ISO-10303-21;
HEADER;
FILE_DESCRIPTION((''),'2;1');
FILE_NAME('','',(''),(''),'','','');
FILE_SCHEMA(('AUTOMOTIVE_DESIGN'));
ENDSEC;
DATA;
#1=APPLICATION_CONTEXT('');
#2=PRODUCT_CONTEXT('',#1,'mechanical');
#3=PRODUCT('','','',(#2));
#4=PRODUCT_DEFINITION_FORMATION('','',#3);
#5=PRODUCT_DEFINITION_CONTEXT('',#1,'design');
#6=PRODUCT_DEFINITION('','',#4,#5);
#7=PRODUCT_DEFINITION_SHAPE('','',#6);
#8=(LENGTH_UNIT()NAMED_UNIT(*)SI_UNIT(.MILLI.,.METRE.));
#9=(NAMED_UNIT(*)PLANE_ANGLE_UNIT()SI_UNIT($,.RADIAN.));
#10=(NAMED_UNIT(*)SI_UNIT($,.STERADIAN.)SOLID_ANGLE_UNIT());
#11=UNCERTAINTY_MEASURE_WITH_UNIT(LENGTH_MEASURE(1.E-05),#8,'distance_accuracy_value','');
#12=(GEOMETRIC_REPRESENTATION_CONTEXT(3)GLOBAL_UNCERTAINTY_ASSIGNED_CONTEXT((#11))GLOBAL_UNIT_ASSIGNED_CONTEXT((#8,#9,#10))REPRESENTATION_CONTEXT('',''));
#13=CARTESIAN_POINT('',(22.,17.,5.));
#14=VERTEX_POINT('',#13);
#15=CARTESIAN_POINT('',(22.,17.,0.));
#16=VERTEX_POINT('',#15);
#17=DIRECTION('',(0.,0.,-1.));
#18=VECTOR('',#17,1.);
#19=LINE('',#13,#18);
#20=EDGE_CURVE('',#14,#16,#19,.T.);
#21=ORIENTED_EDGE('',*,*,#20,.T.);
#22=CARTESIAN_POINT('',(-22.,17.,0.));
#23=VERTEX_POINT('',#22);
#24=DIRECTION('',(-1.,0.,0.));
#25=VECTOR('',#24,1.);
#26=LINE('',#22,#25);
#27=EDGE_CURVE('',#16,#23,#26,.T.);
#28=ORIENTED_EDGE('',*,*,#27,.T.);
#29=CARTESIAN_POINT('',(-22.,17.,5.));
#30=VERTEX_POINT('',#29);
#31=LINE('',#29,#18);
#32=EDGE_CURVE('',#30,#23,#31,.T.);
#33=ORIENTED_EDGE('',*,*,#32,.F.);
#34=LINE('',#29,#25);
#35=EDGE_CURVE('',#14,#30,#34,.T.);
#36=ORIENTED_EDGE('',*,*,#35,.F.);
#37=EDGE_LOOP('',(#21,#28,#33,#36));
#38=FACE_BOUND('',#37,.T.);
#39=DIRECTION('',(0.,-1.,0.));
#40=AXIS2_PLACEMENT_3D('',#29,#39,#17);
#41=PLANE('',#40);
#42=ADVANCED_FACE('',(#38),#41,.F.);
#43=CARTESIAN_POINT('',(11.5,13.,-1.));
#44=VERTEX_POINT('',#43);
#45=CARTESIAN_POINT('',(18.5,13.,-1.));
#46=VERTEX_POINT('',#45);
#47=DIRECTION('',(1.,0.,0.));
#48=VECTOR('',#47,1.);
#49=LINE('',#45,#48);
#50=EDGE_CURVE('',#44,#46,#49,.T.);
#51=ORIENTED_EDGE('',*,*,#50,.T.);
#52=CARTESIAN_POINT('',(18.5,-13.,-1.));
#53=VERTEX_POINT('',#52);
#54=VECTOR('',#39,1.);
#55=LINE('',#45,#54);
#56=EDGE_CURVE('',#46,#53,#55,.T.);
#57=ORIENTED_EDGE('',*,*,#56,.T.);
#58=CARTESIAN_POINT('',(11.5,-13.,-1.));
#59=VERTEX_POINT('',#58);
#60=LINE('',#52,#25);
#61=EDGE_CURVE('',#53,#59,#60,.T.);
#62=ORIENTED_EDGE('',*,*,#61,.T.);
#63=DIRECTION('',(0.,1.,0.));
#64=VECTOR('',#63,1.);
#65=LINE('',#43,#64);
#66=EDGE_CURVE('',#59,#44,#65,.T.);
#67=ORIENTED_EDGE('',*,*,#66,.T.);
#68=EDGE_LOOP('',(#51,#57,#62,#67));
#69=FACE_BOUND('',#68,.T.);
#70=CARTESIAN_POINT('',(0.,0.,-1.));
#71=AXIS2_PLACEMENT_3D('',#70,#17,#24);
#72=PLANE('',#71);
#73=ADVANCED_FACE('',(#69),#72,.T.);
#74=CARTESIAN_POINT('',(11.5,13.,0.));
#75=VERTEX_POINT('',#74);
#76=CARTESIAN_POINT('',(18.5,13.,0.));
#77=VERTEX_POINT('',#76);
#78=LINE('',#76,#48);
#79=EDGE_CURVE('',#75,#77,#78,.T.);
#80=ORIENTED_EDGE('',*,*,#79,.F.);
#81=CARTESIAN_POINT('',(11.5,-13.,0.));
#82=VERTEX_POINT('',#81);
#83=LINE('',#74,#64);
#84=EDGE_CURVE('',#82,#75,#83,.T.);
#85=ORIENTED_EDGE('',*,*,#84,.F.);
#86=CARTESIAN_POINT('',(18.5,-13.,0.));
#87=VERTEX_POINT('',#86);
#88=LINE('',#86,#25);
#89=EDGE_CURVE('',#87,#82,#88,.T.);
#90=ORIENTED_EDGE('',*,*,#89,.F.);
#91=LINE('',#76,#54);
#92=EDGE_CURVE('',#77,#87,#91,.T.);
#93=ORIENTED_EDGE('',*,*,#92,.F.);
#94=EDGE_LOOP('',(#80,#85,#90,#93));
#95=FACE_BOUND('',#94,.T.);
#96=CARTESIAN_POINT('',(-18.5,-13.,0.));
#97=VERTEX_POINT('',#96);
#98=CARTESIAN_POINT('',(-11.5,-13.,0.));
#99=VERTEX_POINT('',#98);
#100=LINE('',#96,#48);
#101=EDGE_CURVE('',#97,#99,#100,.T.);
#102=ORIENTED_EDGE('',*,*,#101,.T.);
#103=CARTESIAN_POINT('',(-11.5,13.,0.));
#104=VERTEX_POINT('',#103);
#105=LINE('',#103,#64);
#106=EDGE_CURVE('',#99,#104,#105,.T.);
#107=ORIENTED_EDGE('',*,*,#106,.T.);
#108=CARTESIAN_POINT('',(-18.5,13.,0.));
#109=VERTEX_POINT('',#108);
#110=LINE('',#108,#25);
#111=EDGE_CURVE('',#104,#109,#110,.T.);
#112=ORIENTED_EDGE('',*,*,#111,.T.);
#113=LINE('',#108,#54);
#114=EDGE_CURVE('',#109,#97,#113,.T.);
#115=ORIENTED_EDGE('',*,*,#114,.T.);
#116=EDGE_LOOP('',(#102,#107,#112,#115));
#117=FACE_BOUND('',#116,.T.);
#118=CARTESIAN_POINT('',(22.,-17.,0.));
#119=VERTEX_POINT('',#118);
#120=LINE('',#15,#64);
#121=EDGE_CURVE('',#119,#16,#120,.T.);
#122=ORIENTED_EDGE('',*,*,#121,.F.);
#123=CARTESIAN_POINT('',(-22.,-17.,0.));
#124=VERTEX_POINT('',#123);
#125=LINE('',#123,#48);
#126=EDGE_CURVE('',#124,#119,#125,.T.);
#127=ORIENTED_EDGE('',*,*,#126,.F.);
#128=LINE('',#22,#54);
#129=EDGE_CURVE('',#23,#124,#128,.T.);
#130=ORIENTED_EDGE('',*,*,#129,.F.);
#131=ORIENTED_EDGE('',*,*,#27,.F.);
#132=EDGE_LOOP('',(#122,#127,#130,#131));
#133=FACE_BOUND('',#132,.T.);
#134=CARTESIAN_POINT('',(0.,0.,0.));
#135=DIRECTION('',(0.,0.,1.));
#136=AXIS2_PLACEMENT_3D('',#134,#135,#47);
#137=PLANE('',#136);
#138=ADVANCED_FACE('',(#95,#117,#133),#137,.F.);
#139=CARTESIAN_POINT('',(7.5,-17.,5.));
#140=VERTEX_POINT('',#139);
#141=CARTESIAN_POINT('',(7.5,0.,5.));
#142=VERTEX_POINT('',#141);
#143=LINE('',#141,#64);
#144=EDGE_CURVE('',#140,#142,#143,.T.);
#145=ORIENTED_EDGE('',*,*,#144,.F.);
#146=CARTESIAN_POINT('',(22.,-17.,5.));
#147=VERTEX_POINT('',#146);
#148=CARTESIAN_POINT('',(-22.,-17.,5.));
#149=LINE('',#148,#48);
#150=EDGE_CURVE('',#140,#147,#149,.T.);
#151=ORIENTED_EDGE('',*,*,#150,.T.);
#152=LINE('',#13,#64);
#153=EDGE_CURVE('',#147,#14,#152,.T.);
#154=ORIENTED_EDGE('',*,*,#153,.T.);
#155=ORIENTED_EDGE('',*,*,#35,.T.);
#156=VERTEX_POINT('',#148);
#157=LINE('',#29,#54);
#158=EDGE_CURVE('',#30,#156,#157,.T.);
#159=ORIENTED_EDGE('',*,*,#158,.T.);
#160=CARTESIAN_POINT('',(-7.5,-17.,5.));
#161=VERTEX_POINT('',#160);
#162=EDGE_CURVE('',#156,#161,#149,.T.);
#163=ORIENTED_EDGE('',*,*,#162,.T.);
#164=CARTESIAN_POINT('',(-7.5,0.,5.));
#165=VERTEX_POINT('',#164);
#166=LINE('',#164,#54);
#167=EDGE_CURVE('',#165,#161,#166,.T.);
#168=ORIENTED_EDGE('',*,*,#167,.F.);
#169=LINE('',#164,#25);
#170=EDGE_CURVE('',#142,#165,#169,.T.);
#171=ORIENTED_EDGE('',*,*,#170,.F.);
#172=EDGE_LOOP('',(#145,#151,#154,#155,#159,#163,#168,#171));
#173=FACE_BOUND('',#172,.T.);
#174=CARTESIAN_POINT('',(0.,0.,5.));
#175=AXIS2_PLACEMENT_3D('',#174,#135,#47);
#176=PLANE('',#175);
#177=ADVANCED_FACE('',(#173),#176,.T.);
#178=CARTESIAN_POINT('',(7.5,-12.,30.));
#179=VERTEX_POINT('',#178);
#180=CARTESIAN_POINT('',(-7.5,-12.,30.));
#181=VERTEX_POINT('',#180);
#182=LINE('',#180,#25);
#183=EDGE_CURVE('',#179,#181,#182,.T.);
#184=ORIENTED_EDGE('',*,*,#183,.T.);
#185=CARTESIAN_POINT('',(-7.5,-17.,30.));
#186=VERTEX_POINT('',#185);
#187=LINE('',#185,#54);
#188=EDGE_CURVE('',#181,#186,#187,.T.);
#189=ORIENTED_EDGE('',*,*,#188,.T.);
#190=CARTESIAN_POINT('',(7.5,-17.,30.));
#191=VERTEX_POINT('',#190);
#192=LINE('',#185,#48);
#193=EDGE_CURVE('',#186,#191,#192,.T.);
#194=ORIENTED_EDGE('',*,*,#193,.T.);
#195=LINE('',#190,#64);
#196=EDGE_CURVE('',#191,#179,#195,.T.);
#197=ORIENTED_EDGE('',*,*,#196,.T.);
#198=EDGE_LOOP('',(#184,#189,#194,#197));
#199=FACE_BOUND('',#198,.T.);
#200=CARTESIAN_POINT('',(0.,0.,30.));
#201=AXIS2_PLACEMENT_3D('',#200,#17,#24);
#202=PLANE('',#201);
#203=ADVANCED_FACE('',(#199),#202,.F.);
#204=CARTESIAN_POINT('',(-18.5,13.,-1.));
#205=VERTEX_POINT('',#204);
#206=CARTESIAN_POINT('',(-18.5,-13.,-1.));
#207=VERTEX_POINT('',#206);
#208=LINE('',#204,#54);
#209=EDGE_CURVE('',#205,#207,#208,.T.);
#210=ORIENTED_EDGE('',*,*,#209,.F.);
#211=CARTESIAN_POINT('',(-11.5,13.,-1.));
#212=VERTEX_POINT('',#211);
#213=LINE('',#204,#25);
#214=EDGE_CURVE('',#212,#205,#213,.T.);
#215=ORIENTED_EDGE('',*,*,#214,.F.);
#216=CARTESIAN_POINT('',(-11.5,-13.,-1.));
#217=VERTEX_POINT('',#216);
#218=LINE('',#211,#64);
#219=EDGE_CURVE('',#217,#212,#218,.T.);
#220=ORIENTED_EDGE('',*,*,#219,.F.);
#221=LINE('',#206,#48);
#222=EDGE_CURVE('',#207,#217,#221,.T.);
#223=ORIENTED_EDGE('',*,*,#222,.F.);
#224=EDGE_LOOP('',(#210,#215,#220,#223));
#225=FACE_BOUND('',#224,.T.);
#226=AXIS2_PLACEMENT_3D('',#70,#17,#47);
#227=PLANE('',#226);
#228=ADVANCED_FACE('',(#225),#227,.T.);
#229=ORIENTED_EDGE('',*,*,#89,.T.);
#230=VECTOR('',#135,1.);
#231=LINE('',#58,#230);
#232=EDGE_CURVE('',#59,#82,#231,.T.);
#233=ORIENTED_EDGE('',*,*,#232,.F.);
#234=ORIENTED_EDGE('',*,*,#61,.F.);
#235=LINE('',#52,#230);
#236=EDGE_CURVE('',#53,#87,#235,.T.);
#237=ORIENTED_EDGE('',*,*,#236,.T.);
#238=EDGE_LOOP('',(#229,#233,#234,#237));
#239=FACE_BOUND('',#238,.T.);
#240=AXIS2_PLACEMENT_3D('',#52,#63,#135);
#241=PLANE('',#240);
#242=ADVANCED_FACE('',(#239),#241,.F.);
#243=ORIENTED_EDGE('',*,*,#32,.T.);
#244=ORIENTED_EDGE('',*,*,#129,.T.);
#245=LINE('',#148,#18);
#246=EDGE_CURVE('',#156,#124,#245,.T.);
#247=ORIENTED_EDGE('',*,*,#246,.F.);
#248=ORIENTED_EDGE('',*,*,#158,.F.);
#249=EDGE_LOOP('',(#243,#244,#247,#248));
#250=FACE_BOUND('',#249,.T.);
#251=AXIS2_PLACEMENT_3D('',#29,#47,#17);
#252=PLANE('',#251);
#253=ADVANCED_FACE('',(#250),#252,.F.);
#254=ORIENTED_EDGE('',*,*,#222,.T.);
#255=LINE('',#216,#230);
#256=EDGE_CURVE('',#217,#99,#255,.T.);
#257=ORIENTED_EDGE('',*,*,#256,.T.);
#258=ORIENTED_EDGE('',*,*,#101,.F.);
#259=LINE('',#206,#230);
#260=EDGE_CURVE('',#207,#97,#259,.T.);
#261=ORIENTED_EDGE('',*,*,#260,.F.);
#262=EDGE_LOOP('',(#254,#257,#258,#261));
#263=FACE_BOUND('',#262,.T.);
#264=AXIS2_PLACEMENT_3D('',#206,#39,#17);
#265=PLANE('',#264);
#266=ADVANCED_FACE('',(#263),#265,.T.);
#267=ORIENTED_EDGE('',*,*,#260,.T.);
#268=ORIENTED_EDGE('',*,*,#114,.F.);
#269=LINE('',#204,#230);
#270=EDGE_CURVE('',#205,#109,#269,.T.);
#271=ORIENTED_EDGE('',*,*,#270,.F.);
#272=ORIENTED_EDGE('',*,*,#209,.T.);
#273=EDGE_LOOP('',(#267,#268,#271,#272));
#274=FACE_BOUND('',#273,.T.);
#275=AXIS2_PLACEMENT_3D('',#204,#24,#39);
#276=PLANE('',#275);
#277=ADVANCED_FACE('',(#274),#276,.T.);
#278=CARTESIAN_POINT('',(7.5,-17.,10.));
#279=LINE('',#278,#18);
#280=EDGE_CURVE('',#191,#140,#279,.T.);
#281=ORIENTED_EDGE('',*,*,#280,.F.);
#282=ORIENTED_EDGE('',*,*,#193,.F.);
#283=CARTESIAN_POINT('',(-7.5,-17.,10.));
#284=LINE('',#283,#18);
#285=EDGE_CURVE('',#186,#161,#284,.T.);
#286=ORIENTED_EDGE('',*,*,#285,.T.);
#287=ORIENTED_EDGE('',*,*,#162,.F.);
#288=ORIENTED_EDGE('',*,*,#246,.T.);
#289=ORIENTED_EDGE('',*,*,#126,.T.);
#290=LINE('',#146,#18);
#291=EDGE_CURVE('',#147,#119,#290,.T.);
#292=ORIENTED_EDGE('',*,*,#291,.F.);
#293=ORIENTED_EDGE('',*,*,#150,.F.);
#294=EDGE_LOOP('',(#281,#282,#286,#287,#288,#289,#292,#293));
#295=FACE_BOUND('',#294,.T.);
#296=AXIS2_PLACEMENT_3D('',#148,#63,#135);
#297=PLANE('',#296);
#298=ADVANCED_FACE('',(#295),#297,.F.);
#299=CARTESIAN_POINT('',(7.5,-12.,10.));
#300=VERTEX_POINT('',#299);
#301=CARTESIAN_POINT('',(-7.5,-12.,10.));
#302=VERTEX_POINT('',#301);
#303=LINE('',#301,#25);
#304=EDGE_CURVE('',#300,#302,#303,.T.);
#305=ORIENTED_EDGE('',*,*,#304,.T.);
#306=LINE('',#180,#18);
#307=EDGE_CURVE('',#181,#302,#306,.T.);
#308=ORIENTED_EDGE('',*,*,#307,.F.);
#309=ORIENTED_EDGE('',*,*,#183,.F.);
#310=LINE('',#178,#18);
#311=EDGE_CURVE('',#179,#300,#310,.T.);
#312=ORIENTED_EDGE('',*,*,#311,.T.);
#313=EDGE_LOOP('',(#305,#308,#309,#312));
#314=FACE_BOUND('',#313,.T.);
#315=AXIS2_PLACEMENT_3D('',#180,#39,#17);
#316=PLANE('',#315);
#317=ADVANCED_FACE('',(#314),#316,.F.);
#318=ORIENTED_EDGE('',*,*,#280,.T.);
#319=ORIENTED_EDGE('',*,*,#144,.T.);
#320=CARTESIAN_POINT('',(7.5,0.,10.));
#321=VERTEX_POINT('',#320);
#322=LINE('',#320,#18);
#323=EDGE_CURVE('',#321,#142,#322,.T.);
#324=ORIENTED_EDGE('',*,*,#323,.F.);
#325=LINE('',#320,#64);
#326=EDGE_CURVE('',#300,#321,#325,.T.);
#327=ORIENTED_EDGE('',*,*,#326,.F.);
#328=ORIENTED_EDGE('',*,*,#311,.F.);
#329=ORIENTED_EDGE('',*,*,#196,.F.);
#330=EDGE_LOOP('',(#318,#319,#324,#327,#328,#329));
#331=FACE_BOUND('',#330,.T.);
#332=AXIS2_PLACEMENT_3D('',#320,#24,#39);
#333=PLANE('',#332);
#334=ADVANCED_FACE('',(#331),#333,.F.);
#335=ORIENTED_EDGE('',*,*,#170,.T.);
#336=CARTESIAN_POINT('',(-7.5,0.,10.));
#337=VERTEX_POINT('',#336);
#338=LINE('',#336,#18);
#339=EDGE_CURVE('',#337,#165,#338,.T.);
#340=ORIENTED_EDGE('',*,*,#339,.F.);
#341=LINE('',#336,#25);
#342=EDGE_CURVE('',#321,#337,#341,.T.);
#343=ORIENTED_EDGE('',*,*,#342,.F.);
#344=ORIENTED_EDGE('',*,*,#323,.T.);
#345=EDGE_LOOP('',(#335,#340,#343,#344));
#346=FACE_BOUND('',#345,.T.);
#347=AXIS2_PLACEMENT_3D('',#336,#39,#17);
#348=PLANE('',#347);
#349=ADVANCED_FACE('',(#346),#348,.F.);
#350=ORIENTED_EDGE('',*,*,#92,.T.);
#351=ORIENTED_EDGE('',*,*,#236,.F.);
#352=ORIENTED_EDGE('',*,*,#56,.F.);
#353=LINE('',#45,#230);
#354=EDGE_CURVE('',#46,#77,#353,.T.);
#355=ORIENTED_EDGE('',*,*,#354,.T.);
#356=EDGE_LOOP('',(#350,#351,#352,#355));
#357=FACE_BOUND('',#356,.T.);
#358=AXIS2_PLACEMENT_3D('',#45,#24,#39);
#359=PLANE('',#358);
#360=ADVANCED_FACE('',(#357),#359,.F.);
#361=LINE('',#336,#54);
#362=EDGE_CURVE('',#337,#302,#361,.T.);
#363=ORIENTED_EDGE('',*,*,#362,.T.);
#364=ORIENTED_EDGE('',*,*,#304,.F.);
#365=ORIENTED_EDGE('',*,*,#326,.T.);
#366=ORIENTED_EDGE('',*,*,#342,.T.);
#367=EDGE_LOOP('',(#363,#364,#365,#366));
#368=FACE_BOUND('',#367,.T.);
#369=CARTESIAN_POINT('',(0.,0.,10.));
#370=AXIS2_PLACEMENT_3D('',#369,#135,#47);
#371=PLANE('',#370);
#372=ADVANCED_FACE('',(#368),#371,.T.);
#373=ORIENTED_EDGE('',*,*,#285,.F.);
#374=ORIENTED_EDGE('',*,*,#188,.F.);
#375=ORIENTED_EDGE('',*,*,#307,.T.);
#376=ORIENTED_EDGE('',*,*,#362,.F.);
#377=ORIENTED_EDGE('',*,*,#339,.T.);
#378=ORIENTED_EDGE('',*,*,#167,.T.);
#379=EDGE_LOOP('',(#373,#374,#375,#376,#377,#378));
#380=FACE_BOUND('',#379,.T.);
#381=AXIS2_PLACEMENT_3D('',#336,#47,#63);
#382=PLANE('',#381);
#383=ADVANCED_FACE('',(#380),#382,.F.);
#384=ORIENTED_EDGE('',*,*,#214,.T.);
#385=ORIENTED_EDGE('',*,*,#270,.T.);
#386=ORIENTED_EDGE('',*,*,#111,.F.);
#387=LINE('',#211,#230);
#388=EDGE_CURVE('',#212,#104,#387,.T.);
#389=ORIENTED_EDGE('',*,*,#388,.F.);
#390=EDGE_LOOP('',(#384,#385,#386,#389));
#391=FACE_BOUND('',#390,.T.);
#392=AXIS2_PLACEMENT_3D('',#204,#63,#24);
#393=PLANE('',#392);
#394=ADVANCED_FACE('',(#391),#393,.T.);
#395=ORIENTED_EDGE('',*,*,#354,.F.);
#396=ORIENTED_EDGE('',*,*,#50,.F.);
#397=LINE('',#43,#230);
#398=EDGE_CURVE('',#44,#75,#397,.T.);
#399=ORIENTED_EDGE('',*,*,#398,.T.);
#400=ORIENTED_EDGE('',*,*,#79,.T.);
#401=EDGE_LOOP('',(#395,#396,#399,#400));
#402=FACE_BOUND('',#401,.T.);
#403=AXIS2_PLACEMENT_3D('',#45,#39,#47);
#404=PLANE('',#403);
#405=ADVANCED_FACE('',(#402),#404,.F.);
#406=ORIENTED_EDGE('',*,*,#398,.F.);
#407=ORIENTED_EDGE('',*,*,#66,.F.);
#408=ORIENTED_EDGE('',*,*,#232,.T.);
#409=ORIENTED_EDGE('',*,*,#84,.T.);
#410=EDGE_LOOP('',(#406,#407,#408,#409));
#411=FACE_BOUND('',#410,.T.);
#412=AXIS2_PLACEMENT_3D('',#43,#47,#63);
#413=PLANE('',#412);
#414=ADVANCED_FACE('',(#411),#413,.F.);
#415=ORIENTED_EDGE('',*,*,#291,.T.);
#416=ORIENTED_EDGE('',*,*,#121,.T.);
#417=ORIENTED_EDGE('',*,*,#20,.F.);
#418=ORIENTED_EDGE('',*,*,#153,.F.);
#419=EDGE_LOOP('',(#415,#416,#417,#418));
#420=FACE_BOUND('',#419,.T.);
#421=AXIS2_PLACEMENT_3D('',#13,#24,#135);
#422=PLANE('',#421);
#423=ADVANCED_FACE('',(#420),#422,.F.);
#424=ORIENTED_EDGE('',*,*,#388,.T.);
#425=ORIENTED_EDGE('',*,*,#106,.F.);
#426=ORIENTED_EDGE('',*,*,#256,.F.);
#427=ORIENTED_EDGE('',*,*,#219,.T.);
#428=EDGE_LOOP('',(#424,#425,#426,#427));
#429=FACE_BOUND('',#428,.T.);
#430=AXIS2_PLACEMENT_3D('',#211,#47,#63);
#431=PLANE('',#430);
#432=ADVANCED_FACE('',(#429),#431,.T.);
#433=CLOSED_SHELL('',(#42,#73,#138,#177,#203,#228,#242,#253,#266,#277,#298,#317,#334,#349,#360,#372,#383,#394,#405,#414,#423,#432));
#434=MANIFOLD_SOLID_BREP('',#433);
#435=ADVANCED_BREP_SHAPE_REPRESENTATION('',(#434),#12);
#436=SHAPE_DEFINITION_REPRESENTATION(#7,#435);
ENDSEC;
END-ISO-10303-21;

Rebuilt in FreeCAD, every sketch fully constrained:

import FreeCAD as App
import Part
import Sketcher

V = App.Vector
Q = App.Units.Quantity

doc = App.newDocument("Part")
body = doc.addObject("PartDesign::Body", "Body")

# Sketch on XY plane
sketch1 = doc.addObject("Sketcher::SketchObject", "Sketch")
body.addObject(sketch1)
sketch1.AttachmentSupport = (doc.XY_Plane, [""])
sketch1.MapMode = "FlatFace"
sketch1.addGeometry(Part.LineSegment(V(-22, 17, 0), V(-22, -17, 0)), False)
sketch1.addGeometry(Part.LineSegment(V(-22, -17, 0), V(22, -17, 0)), False)
sketch1.addGeometry(Part.LineSegment(V(22, -17, 0), V(22, 17, 0)), False)
sketch1.addGeometry(Part.LineSegment(V(22, 17, 0), V(-22, 17, 0)), False)
sketch1.addConstraint(Sketcher.Constraint("Coincident", 0, 2, 1, 1))
sketch1.addConstraint(Sketcher.Constraint("Coincident", 1, 2, 2, 1))
sketch1.addConstraint(Sketcher.Constraint("Coincident", 2, 2, 3, 1))
sketch1.addConstraint(Sketcher.Constraint("Coincident", 3, 2, 0, 1))
sketch1.addConstraint(Sketcher.Constraint("Vertical", 0))
sketch1.addConstraint(Sketcher.Constraint("Horizontal", 1))
sketch1.addConstraint(Sketcher.Constraint("Vertical", 2))
sketch1.addConstraint(Sketcher.Constraint("Horizontal", 3))
sketch1.addConstraint(Sketcher.Constraint("Symmetric", 0, 2, 2, 2, -1, 1))
sketch1.addConstraint(Sketcher.Constraint("DistanceX", 1, 1, 1, 2, Q("44 mm")))
sketch1.addConstraint(Sketcher.Constraint("DistanceY", 0, 2, 0, 1, Q("34 mm")))
pad1 = doc.addObject("PartDesign::Pad", "Pad")
body.addObject(pad1)
pad1.Profile = sketch1
pad1.Length = 5

# Sketch on XY plane
sketch2 = doc.addObject("Sketcher::SketchObject", "Sketch001")
body.addObject(sketch2)
sketch2.AttachmentSupport = (doc.XY_Plane, [""])
sketch2.MapMode = "FlatFace"
sketch2.addGeometry(Part.LineSegment(V(18.5, 13, 0), V(18.5, -13, 0)), False)
sketch2.addGeometry(Part.LineSegment(V(18.5, -13, 0), V(11.5, -13, 0)), False)
sketch2.addGeometry(Part.LineSegment(V(11.5, -13, 0), V(11.5, 13, 0)), False)
sketch2.addGeometry(Part.LineSegment(V(11.5, 13, 0), V(18.5, 13, 0)), False)
sketch2.addConstraint(Sketcher.Constraint("Coincident", 0, 2, 1, 1))
sketch2.addConstraint(Sketcher.Constraint("Coincident", 1, 2, 2, 1))
sketch2.addConstraint(Sketcher.Constraint("Coincident", 2, 2, 3, 1))
sketch2.addConstraint(Sketcher.Constraint("Coincident", 3, 2, 0, 1))
sketch2.addConstraint(Sketcher.Constraint("Vertical", 0))
sketch2.addConstraint(Sketcher.Constraint("Horizontal", 1))
sketch2.addConstraint(Sketcher.Constraint("Vertical", 2))
sketch2.addConstraint(Sketcher.Constraint("Horizontal", 3))
sketch2.addConstraint(Sketcher.Constraint("DistanceX", 1, 2, 1, 1, Q("7 mm")))
sketch2.addConstraint(Sketcher.Constraint("DistanceY", 0, 2, 0, 1, Q("26 mm")))
sketch2.addConstraint(Sketcher.Constraint("DistanceY", 0, 2, -1, 1, Q("13 mm")))
sketch2.addConstraint(Sketcher.Constraint("DistanceX", -1, 1, 0, 2, Q("18.5 mm")))
pad2 = doc.addObject("PartDesign::Pad", "Pad001")
body.addObject(pad2)
pad2.Profile = sketch2
pad2.Length = 1
pad2.Reversed = True
doc.recompute()

mirrored = doc.addObject("PartDesign::Mirrored", "Mirrored")
body.addObject(mirrored)
mirrored.Originals = [pad2]
mirrored.MirrorPlane = (doc.YZ_Plane, [""])
body.Tip = mirrored

# Sketch on XY plane
sketch3 = doc.addObject("Sketcher::SketchObject", "Sketch002")
body.addObject(sketch3)
sketch3.AttachmentSupport = (doc.XY_Plane, [""])
sketch3.MapMode = "FlatFace"
sketch3.AttachmentOffset = App.Placement(V(0, 0, 5), App.Rotation())
sketch3.addGeometry(Part.LineSegment(V(-7.5, 0, 0), V(-7.5, -17, 0)), False)
sketch3.addGeometry(Part.LineSegment(V(-7.5, -17, 0), V(7.5, -17, 0)), False)
sketch3.addGeometry(Part.LineSegment(V(7.5, -17, 0), V(7.5, 0, 0)), False)
sketch3.addGeometry(Part.LineSegment(V(7.5, 0, 0), V(-7.5, 0, 0)), False)
sketch3.addConstraint(Sketcher.Constraint("Coincident", 0, 2, 1, 1))
sketch3.addConstraint(Sketcher.Constraint("Coincident", 1, 2, 2, 1))
sketch3.addConstraint(Sketcher.Constraint("Coincident", 2, 2, 3, 1))
sketch3.addConstraint(Sketcher.Constraint("Coincident", 3, 2, 0, 1))
sketch3.addConstraint(Sketcher.Constraint("Vertical", 0))
sketch3.addConstraint(Sketcher.Constraint("Horizontal", 1))
sketch3.addConstraint(Sketcher.Constraint("Vertical", 2))
sketch3.addConstraint(Sketcher.Constraint("Horizontal", 3))
sketch3.addConstraint(Sketcher.Constraint("Symmetric", 2, 2, 3, 2, -1, 1))
sketch3.addConstraint(Sketcher.Constraint("DistanceX", 1, 1, 1, 2, Q("15 mm")))
sketch3.addConstraint(Sketcher.Constraint("DistanceY", 0, 2, 0, 1, Q("17 mm")))
pad3 = doc.addObject("PartDesign::Pad", "Pad002")
body.addObject(pad3)
pad3.Profile = sketch3
pad3.Length = 5

# Sketch on XY plane
sketch4 = doc.addObject("Sketcher::SketchObject", "Sketch003")
body.addObject(sketch4)
sketch4.AttachmentSupport = (doc.XY_Plane, [""])
sketch4.MapMode = "FlatFace"
sketch4.AttachmentOffset = App.Placement(V(0, 0, 10), App.Rotation())
sketch4.addGeometry(Part.LineSegment(V(-7.5, -12, 0), V(-7.5, -17, 0)), False)
sketch4.addGeometry(Part.LineSegment(V(-7.5, -17, 0), V(7.5, -17, 0)), False)
sketch4.addGeometry(Part.LineSegment(V(7.5, -17, 0), V(7.5, -12, 0)), False)
sketch4.addGeometry(Part.LineSegment(V(7.5, -12, 0), V(-7.5, -12, 0)), False)
sketch4.addConstraint(Sketcher.Constraint("Coincident", 0, 2, 1, 1))
sketch4.addConstraint(Sketcher.Constraint("Coincident", 1, 2, 2, 1))
sketch4.addConstraint(Sketcher.Constraint("Coincident", 2, 2, 3, 1))
sketch4.addConstraint(Sketcher.Constraint("Coincident", 3, 2, 0, 1))
sketch4.addConstraint(Sketcher.Constraint("Vertical", 0))
sketch4.addConstraint(Sketcher.Constraint("Horizontal", 1))
sketch4.addConstraint(Sketcher.Constraint("Vertical", 2))
sketch4.addConstraint(Sketcher.Constraint("Horizontal", 3))
sketch4.addConstraint(Sketcher.Constraint("DistanceX", 1, 1, 1, 2, Q("15 mm")))
sketch4.addConstraint(Sketcher.Constraint("DistanceY", 0, 2, 0, 1, Q("5 mm")))
sketch4.addConstraint(Sketcher.Constraint("DistanceY", 0, 2, -1, 1, Q("17 mm")))
sketch4.addConstraint(Sketcher.Constraint("DistanceX", 0, 2, -1, 1, Q("7.5 mm")))
pad4 = doc.addObject("PartDesign::Pad", "Pad003")
body.addObject(pad4)
pad4.Profile = sketch4
pad4.Length = 20

doc.recompute()
